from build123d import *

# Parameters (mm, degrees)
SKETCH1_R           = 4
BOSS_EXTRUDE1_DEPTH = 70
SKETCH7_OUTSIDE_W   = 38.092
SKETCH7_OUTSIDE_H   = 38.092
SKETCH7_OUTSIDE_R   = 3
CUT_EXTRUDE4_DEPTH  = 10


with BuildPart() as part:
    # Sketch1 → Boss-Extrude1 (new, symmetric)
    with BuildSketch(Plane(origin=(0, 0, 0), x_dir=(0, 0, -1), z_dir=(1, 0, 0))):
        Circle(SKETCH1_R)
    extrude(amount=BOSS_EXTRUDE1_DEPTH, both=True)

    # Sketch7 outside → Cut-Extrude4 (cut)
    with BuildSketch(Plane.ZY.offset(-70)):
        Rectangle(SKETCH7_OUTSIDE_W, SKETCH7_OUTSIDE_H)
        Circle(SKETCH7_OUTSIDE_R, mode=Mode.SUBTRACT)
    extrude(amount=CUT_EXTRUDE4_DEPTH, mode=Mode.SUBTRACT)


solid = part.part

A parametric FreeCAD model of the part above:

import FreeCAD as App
import Part
import Sketcher


def add_polygon(sketch, points):
    """Adds a closed chain of lines whose ends are joined by coincident constraints."""
    first, n = sketch.GeometryCount, len(points)
    for a, b in zip(points, points[1:] + points[:1]):
        sketch.addGeometry(Part.LineSegment(App.Vector(*a, 0), App.Vector(*b, 0)), False)
    for i in range(n):
        sketch.addConstraint(Sketcher.Constraint("Coincident", first + i, 2, first + (i + 1) % n, 1))

doc = App.newDocument("Part")
body = doc.addObject("PartDesign::Body", "Body")

# Sketch on YZ plane
sketch1 = body.newObject("Sketcher::SketchObject", "Sketch")
sketch1.AttachmentSupport = (doc.getObject("YZ_Plane"), [""])
sketch1.MapMode = "FlatFace"
sketch1.addGeometry(Part.Circle(App.Vector(0, 0, 0), App.Vector(0, 0, 1), 4), False)
sketch1.addConstraint([
    Sketcher.Constraint("Coincident", 0, 3, -1, 1),
    Sketcher.Constraint("Diameter", 0, 8.0),
])
pad1 = body.newObject("PartDesign::Pad", "Pad")
pad1.Profile = sketch1
pad1.Length = 140
pad1.Midplane = True

# Sketch on YZ plane
sketch2 = body.newObject("Sketcher::SketchObject", "Sketch001")
sketch2.AttachmentSupport = (doc.getObject("YZ_Plane"), [""])
sketch2.MapMode = "FlatFace"
sketch2.AttachmentOffset = App.Placement(App.Vector(0, 0, 70), App.Rotation())
add_polygon(sketch2, [(19, -19), (-19, -19), (-19, 19), (19, 19)])  # lines 0-3
sketch2.addGeometry(Part.Circle(App.Vector(0, 0, 0), App.Vector(0, 0, 1), 3), False)  # 4
sketch2.addConstraint([
    Sketcher.Constraint("Horizontal", 0),
    Sketcher.Constraint("Vertical", 1),
    Sketcher.Constraint("Horizontal", 2),
    Sketcher.Constraint("Vertical", 3),
    Sketcher.Constraint("Coincident", 4, 3, -1, 1),
    Sketcher.Constraint("Symmetric", 0, 2, 2, 2, -1, 1),
    Sketcher.Constraint("Equal", 2, 1),
    Sketcher.Constraint("Diameter", 4, 6.0),
    Sketcher.Constraint("DistanceX", 0, 2, 0, 1, 38.092),
])
pocket1 = body.newObject("PartDesign::Pocket", "Pocket")
pocket1.Profile = sketch2
pocket1.Length = 10

doc.recompute()
